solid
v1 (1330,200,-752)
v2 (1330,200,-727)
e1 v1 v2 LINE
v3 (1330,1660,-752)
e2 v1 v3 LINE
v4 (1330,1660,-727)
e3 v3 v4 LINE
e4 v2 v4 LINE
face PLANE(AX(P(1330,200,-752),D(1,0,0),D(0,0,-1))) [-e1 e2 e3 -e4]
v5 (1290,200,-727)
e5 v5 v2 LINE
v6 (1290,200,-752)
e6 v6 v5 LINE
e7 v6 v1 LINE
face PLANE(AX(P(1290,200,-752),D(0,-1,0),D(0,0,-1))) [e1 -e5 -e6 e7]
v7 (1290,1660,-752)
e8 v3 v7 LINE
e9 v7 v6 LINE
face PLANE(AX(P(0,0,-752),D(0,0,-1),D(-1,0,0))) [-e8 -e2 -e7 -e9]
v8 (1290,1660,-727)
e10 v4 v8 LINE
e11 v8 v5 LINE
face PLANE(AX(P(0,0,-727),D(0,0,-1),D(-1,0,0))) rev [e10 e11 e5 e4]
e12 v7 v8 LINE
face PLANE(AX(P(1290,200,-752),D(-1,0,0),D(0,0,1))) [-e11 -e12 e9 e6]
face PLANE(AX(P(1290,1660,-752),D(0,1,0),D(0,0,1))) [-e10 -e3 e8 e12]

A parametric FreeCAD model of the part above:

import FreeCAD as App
import Part
import Sketcher
from FreeCAD import Vector
Q = App.Units.Quantity

doc = App.newDocument("Part")
body = doc.addObject("PartDesign::Body", "Body")

sketch1 = doc.addObject("Sketcher::SketchObject", "Sketch")
body.addObject(sketch1)
sketch1.AttachmentSupport = (doc.XY_Plane, [""])
sketch1.MapMode = "FlatFace"
sketch1.AttachmentOffset = App.Placement(Vector(0, 0, -727), App.Rotation())
sketch1.addGeometry(Part.LineSegment(Vector(1290, 1660, 0), Vector(1290, 200, 0)), False)
sketch1.addGeometry(Part.LineSegment(Vector(1290, 200, 0), Vector(1330, 200, 0)), False)
sketch1.addGeometry(Part.LineSegment(Vector(1330, 200, 0), Vector(1330, 1660, 0)), False)
sketch1.addGeometry(Part.LineSegment(Vector(1330, 1660, 0), Vector(1290, 1660, 0)), False)
sketch1.addConstraint(Sketcher.Constraint("Coincident", 0, 2, 1, 1))
sketch1.addConstraint(Sketcher.Constraint("Coincident", 1, 2, 2, 1))
sketch1.addConstraint(Sketcher.Constraint("Coincident", 2, 2, 3, 1))
sketch1.addConstraint(Sketcher.Constraint("Coincident", 3, 2, 0, 1))
sketch1.addConstraint(Sketcher.Constraint("Vertical", 0))
sketch1.addConstraint(Sketcher.Constraint("Horizontal", 1))
sketch1.addConstraint(Sketcher.Constraint("Vertical", 2))
sketch1.addConstraint(Sketcher.Constraint("Horizontal", 3))
sketch1.addConstraint(Sketcher.Constraint("DistanceX", 1, 1, 1, 2, Q("40 mm")))
sketch1.addConstraint(Sketcher.Constraint("DistanceY", 0, 2, 0, 1, Q("1460 mm")))
sketch1.addConstraint(Sketcher.Constraint("DistanceX", -1, 1, 0, 2, Q("1290 mm")))
sketch1.addConstraint(Sketcher.Constraint("DistanceY", -1, 1, 0, 2, Q("200 mm")))
pad1 = doc.addObject("PartDesign::Pad", "Pad")
body.addObject(pad1)
pad1.Profile = sketch1
pad1.Length = 25
pad1.Reversed = True

doc.recompute()
